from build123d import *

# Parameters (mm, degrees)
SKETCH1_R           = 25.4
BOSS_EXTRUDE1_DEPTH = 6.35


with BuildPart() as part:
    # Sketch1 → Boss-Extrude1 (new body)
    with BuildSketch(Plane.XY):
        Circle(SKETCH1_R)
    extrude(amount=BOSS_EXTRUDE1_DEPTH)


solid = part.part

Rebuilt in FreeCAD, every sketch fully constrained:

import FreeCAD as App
import Part
import Sketcher

V = App.Vector
Q = App.Units.Quantity

doc = App.newDocument("Part")
body = doc.addObject("PartDesign::Body", "Body")

# Sketch on XY plane
sketch1 = body.newObject("Sketcher::SketchObject", "Sketch")
sketch1.AttachmentSupport = (doc.getObject("XY_Plane"), [""])
sketch1.MapMode = "FlatFace"
sketch1.addGeometry(Part.Circle(V(0, 0, 0), V(0, 0, 1), 25), False)
sketch1.addConstraint([
    Sketcher.Constraint("Coincident", 0, 3, -1, 1),
    Sketcher.Constraint("Diameter", 0, Q("2 in")),
])
pad1 = body.newObject("PartDesign::Pad", "Pad")
pad1.Profile = sketch1
pad1.Length = Q("0.25 in")

doc.recompute()
